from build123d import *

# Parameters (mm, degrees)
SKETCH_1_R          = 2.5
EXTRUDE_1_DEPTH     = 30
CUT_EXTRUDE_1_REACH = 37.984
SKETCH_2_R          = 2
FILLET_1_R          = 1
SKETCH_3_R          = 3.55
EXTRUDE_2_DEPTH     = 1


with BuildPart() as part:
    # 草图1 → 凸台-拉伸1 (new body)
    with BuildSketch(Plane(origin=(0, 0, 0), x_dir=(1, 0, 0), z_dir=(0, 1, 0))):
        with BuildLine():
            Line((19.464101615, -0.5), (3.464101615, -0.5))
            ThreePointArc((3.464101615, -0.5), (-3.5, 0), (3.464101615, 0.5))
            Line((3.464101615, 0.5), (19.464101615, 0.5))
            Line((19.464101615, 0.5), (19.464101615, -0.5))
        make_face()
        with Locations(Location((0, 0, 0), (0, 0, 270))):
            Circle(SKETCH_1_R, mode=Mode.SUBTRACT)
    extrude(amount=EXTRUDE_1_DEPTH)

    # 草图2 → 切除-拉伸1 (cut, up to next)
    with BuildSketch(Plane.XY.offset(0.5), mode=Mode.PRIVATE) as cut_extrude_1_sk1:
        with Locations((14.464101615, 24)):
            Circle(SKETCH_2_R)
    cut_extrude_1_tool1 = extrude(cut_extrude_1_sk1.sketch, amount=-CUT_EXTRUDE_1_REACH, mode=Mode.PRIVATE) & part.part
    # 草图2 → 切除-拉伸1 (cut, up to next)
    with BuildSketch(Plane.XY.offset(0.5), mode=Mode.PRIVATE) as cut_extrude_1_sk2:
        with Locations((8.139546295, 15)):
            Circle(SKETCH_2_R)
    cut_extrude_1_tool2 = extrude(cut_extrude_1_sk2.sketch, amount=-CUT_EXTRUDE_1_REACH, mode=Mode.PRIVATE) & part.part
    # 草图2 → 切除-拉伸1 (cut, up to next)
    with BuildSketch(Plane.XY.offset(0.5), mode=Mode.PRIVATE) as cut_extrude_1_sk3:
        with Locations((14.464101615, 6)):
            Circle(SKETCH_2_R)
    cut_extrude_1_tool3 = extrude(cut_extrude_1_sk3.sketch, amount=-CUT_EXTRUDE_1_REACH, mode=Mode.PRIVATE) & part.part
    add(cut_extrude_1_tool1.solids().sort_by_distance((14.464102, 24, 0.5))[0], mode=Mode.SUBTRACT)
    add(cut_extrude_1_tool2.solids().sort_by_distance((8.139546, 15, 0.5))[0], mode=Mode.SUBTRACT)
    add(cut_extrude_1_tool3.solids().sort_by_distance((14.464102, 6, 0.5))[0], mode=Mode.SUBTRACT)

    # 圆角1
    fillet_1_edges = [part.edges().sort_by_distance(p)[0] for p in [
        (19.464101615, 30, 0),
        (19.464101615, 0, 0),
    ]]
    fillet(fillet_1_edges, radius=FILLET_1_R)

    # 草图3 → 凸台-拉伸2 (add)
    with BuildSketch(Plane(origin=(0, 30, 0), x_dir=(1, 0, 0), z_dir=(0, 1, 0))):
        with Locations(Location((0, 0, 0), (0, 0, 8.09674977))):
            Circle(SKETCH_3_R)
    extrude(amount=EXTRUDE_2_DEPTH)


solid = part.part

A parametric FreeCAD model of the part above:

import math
import FreeCAD as App
import Part
import Sketcher
Q = App.Units.Quantity


def edges_at(feature, points):
    """Names of the edges that pass closest to the given points."""
    edges = feature.Shape.Edges
    near = lambda p: min(range(len(edges)), key=lambda i: edges[i].distToShape(Part.Vertex(*p))[0])
    return sorted({f"Edge{near(p) + 1}" for p in points})

doc = App.newDocument("Part")
params = doc.addObject("Spreadsheet::Sheet", "Params")
for row, (alias, value) in enumerate([
    ("sketch1_diameter", "5 mm"),
    ("sketch1_radius", "3.5 mm"),
    ("sketch1_width", "16 mm"),
    ("sketch1_height", "1 mm"),
    ("pad1_length", "30 mm"),
    ("sketch2_diameter", "4 mm"),
    ("sketch3_diameter", "4 mm"),
    ("sketch4_diameter", "4 mm"),
    ("fillet_radius", "1 mm"),
    ("sketch5_diameter", "7.1 mm"),
    ("pad2_length", "1 mm"),
], start=1):
    params.set(f"A{row}", alias)
    params.set(f"B{row}", "=" + value)
    params.setAlias(f"B{row}", alias)

body = doc.addObject("PartDesign::Body", "Body")

# Sketch on XZ plane
sketch1 = doc.addObject("Sketcher::SketchObject", "Sketch")
body.addObject(sketch1)
sketch1.AttachmentSupport = (doc.XZ_Plane, [""])
sketch1.MapMode = "FlatFace"
sketch1.addGeometry([
    Part.LineSegment(App.Vector(3.5, 0.5, 0), App.Vector(19.5, 0.5, 0)),  # 0
    Part.LineSegment(App.Vector(19.5, 0.5, 0), App.Vector(19.5, -0.5, 0)),  # 1
    Part.LineSegment(App.Vector(19.5, -0.5, 0), App.Vector(3.5, -0.5, 0)),  # 2
    Part.ArcOfCircle(Part.Circle(App.Vector(0, 0, 0), App.Vector(0, 0, 1), 3.5), math.radians(8), math.radians(352)),  # 3
    Part.Circle(App.Vector(0, 0, 0), App.Vector(0, 0, 1), 2.5),  # 4
], False)
sketch1.addConstraint([
    Sketcher.Constraint("Coincident", 0, 2, 1, 1),
    Sketcher.Constraint("Coincident", 1, 2, 2, 1),
    Sketcher.Constraint("Coincident", 2, 2, 3, 2),
    Sketcher.Constraint("Coincident", 3, 1, 0, 1),
    Sketcher.Constraint("Horizontal", 0),
    Sketcher.Constraint("Vertical", 1),
    Sketcher.Constraint("Horizontal", 2),
    Sketcher.Constraint("Coincident", 3, 3, -1, 1),
    Sketcher.Constraint("Coincident", 4, 3, -1, 1),
    Sketcher.Constraint("Vertical", 2, 2, 3, 1),
    Sketcher.Constraint("Diameter", 4, Q("5 mm")),
    Sketcher.Constraint("Radius", 3, Q("3.5 mm")),
    Sketcher.Constraint("DistanceX", 0, 1, 0, 2, Q("16 mm")),
    Sketcher.Constraint("DistanceY", 1, 2, 1, 1, Q("1 mm")),
])
sketch1.setExpression("Constraints[10]", "Params.sketch1_diameter")
sketch1.setExpression("Constraints[11]", "Params.sketch1_radius")
sketch1.setExpression("Constraints[12]", "Params.sketch1_width")
sketch1.setExpression("Constraints[13]", "Params.sketch1_height")
pad1 = doc.addObject("PartDesign::Pad", "Pad")
body.addObject(pad1)
pad1.Profile = sketch1
pad1.setExpression("Length", "Params.pad1_length")
pad1.Reversed = True

# Sketch on XY plane
sketch2 = doc.addObject("Sketcher::SketchObject", "Sketch001")
body.addObject(sketch2)
sketch2.AttachmentSupport = (doc.XY_Plane, [""])
sketch2.MapMode = "FlatFace"
sketch2.AttachmentOffset = App.Placement(App.Vector(0, 0, 0.5), App.Rotation())
sketch2.addGeometry(Part.Circle(App.Vector(14.5, 24, 0), App.Vector(0, 0, 1), 2), False)
sketch2.addConstraint([
    Sketcher.Constraint("Diameter", 0, Q("4 mm")),
    Sketcher.Constraint("DistanceY", -1, 1, 0, 3, Q("24 mm")),
    Sketcher.Constraint("DistanceX", -1, 1, 0, 3, Q("14.464102 mm")),
])
sketch2.setExpression("Constraints[0]", "Params.sketch2_diameter")
pocket1 = doc.addObject("PartDesign::Pocket", "Pocket")
body.addObject(pocket1)
pocket1.Profile = sketch2
pocket1.Type = "UpToFirst"

# Sketch on XY plane
sketch3 = doc.addObject("Sketcher::SketchObject", "Sketch002")
body.addObject(sketch3)
sketch3.AttachmentSupport = (doc.XY_Plane, [""])
sketch3.MapMode = "FlatFace"
sketch3.AttachmentOffset = App.Placement(App.Vector(0, 0, 0.5), App.Rotation())
sketch3.addGeometry(Part.Circle(App.Vector(8.1, 15, 0), App.Vector(0, 0, 1), 2), False)
sketch3.addConstraint([
    Sketcher.Constraint("Diameter", 0, Q("4 mm")),
    Sketcher.Constraint("DistanceY", -1, 1, 0, 3, Q("15 mm")),
    Sketcher.Constraint("DistanceX", -1, 1, 0, 3, Q("8.139546 mm")),
])
sketch3.setExpression("Constraints[0]", "Params.sketch3_diameter")
pocket2 = doc.addObject("PartDesign::Pocket", "Pocket001")
body.addObject(pocket2)
pocket2.Profile = sketch3
pocket2.Type = "UpToFirst"

# Sketch on XY plane
sketch4 = doc.addObject("Sketcher::SketchObject", "Sketch003")
body.addObject(sketch4)
sketch4.AttachmentSupport = (doc.XY_Plane, [""])
sketch4.MapMode = "FlatFace"
sketch4.AttachmentOffset = App.Placement(App.Vector(0, 0, 0.5), App.Rotation())
sketch4.addGeometry(Part.Circle(App.Vector(14.5, 6, 0), App.Vector(0, 0, 1), 2), False)
sketch4.addConstraint([
    Sketcher.Constraint("Diameter", 0, Q("4 mm")),
    Sketcher.Constraint("DistanceY", -1, 1, 0, 3, Q("6 mm")),
    Sketcher.Constraint("DistanceX", -1, 1, 0, 3, Q("14.464102 mm")),
])
sketch4.setExpression("Constraints[0]", "Params.sketch4_diameter")
pocket3 = doc.addObject("PartDesign::Pocket", "Pocket002")
body.addObject(pocket3)
pocket3.Profile = sketch4
pocket3.Type = "UpToFirst"
doc.recompute()

fillet = doc.addObject("PartDesign::Fillet", "Fillet")
body.addObject(fillet)
fillet.Base = (pocket3, edges_at(pocket3, [(19.464, 30, 0), (19.464, 0, 0)]))
fillet.setExpression("Radius", "Params.fillet_radius")

# Sketch on XZ plane
sketch5 = doc.addObject("Sketcher::SketchObject", "Sketch004")
body.addObject(sketch5)
sketch5.AttachmentSupport = (doc.XZ_Plane, [""])
sketch5.MapMode = "FlatFace"
sketch5.AttachmentOffset = App.Placement(App.Vector(0, 0, -30), App.Rotation())
sketch5.addGeometry(Part.Circle(App.Vector(0, 0, 0), App.Vector(0, 0, 1), 3.5), False)
sketch5.addConstraint([
    Sketcher.Constraint("Coincident", 0, 3, -1, 1),
    Sketcher.Constraint("Diameter", 0, Q("7.1 mm")),
])
sketch5.setExpression("Constraints[1]", "Params.sketch5_diameter")
pad2 = doc.addObject("PartDesign::Pad", "Pad001")
body.addObject(pad2)
pad2.Profile = sketch5
pad2.setExpression("Length", "Params.pad2_length")
pad2.Reversed = True

doc.recompute()
